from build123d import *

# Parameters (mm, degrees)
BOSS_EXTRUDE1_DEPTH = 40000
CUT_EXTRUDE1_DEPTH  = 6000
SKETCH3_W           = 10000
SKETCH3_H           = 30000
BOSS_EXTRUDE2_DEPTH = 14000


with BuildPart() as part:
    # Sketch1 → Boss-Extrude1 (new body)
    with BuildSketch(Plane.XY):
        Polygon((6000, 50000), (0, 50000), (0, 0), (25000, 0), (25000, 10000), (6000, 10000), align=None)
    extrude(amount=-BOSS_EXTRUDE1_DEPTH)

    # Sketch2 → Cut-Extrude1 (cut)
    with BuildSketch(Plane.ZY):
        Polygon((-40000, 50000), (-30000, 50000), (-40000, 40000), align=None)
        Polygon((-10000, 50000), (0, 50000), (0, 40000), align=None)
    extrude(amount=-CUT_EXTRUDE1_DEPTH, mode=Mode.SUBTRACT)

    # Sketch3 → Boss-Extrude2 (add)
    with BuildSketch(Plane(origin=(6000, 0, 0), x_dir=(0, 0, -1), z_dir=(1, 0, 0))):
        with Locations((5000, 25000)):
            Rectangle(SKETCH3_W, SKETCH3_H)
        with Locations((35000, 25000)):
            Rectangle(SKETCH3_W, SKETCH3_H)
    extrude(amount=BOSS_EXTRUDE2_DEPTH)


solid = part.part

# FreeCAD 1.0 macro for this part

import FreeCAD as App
import Part
import Sketcher


def add_polygon(sketch, points):
    """Adds a closed chain of lines whose ends are joined by coincident constraints."""
    first, n = sketch.GeometryCount, len(points)
    for a, b in zip(points, points[1:] + points[:1]):
        sketch.addGeometry(Part.LineSegment(App.Vector(*a, 0), App.Vector(*b, 0)), False)
    for i in range(n):
        sketch.addConstraint(Sketcher.Constraint("Coincident", first + i, 2, first + (i + 1) % n, 1))

doc = App.newDocument("Part")
body = doc.addObject("PartDesign::Body", "Body")

sketch1 = body.newObject("Sketcher::SketchObject", "Sketch")
sketch1.AttachmentSupport = (doc.getObject("XY_Plane"), [""])
sketch1.MapMode = "FlatFace"
add_polygon(sketch1, [(6000, 50000), (0, 50000), (0, 0), (25000, 0), (25000, 10000), (6000, 10000)])
sketch1.addConstraint([
    Sketcher.Constraint("Horizontal", 0),
    Sketcher.Constraint("Vertical", 1),
    Sketcher.Constraint("Horizontal", 2),
    Sketcher.Constraint("Vertical", 3),
    Sketcher.Constraint("Horizontal", 4),
    Sketcher.Constraint("Vertical", 5),
    Sketcher.Constraint("Coincident", 1, 2, -1, 1),
    Sketcher.Constraint("DistanceX", 0, 2, 0, 1, 6000.0),
    Sketcher.Constraint("DistanceX", 2, 1, 2, 2, 25000.0),
    Sketcher.Constraint("DistanceY", 1, 2, 1, 1, 50000.0),
    Sketcher.Constraint("DistanceY", 3, 1, 3, 2, 10000.0),
])
pad1 = body.newObject("PartDesign::Pad", "Pad")
pad1.Profile = sketch1
pad1.Length = 40000
pad1.Reversed = True

sketch2 = body.newObject("Sketcher::SketchObject", "Sketch001")
sketch2.AttachmentSupport = (doc.getObject("YZ_Plane"), [""])
sketch2.MapMode = "FlatFace"
add_polygon(sketch2, [(50000, -30000), (50000, -40000), (40000, -40000)])
add_polygon(sketch2, [(50000, 0), (50000, -10000), (40000, 0)])
sketch2.addConstraint([
    Sketcher.Constraint("Vertical", 0),
    Sketcher.Constraint("Horizontal", 1),
    Sketcher.Constraint("Vertical", 3),
    Sketcher.Constraint("Horizontal", 5),
    Sketcher.Constraint("PointOnObject", 4, 2, -1),
    Sketcher.Constraint("Perpendicular", 2, 4),
    Sketcher.Constraint("Vertical", 2, 2, 3, 2),
    Sketcher.Constraint("Vertical", 1, 2, 4, 2),
    Sketcher.Constraint("Equal", 5, 0),
    Sketcher.Constraint("DistanceX", 1, 2, 1, 1, 10000.0),
    Sketcher.Constraint("DistanceX", -1, 1, 0, 2, 50000.0),
    Sketcher.Constraint("DistanceY", 0, 2, -1, 1, 40000.0),
])
pocket1 = body.newObject("PartDesign::Pocket", "Pocket")
pocket1.Profile = sketch2
pocket1.Length = 6000
pocket1.Reversed = True

sketch3 = body.newObject("Sketcher::SketchObject", "Sketch002")
sketch3.AttachmentSupport = (doc.getObject("YZ_Plane"), [""])
sketch3.MapMode = "FlatFace"
sketch3.AttachmentOffset = App.Placement(App.Vector(0, 0, 6000), App.Rotation())
add_polygon(sketch3, [(40000, 0), (10000, 0), (10000, -10000), (40000, -10000)])
add_polygon(sketch3, [(40000, -30000), (10000, -30000), (10000, -40000), (40000, -40000)])
sketch3.addConstraint([
    Sketcher.Constraint("Horizontal", 0),
    Sketcher.Constraint("Vertical", 1),
    Sketcher.Constraint("Horizontal", 2),
    Sketcher.Constraint("Vertical", 3),
    Sketcher.Constraint("Horizontal", 4),
    Sketcher.Constraint("Vertical", 5),
    Sketcher.Constraint("Horizontal", 6),
    Sketcher.Constraint("Vertical", 7),
    Sketcher.Constraint("PointOnObject", 0, 2, -1),
    Sketcher.Constraint("Vertical", 1, 2, 4, 2),
    Sketcher.Constraint("Vertical", 3, 2, 6, 2),
    Sketcher.Constraint("Equal", 3, 5),
    Sketcher.Constraint("DistanceX", 0, 2, 0, 1, 30000.0),
    Sketcher.Constraint("DistanceY", 1, 2, 1, 1, 10000.0),
    Sketcher.Constraint("DistanceX", -1, 1, 0, 2, 10000.0),
    Sketcher.Constraint("DistanceY", 4, 2, -1, 1, 30000.0),
])
pad2 = body.newObject("PartDesign::Pad", "Pad001")
pad2.Profile = sketch3
pad2.Length = 14000

doc.recompute()
